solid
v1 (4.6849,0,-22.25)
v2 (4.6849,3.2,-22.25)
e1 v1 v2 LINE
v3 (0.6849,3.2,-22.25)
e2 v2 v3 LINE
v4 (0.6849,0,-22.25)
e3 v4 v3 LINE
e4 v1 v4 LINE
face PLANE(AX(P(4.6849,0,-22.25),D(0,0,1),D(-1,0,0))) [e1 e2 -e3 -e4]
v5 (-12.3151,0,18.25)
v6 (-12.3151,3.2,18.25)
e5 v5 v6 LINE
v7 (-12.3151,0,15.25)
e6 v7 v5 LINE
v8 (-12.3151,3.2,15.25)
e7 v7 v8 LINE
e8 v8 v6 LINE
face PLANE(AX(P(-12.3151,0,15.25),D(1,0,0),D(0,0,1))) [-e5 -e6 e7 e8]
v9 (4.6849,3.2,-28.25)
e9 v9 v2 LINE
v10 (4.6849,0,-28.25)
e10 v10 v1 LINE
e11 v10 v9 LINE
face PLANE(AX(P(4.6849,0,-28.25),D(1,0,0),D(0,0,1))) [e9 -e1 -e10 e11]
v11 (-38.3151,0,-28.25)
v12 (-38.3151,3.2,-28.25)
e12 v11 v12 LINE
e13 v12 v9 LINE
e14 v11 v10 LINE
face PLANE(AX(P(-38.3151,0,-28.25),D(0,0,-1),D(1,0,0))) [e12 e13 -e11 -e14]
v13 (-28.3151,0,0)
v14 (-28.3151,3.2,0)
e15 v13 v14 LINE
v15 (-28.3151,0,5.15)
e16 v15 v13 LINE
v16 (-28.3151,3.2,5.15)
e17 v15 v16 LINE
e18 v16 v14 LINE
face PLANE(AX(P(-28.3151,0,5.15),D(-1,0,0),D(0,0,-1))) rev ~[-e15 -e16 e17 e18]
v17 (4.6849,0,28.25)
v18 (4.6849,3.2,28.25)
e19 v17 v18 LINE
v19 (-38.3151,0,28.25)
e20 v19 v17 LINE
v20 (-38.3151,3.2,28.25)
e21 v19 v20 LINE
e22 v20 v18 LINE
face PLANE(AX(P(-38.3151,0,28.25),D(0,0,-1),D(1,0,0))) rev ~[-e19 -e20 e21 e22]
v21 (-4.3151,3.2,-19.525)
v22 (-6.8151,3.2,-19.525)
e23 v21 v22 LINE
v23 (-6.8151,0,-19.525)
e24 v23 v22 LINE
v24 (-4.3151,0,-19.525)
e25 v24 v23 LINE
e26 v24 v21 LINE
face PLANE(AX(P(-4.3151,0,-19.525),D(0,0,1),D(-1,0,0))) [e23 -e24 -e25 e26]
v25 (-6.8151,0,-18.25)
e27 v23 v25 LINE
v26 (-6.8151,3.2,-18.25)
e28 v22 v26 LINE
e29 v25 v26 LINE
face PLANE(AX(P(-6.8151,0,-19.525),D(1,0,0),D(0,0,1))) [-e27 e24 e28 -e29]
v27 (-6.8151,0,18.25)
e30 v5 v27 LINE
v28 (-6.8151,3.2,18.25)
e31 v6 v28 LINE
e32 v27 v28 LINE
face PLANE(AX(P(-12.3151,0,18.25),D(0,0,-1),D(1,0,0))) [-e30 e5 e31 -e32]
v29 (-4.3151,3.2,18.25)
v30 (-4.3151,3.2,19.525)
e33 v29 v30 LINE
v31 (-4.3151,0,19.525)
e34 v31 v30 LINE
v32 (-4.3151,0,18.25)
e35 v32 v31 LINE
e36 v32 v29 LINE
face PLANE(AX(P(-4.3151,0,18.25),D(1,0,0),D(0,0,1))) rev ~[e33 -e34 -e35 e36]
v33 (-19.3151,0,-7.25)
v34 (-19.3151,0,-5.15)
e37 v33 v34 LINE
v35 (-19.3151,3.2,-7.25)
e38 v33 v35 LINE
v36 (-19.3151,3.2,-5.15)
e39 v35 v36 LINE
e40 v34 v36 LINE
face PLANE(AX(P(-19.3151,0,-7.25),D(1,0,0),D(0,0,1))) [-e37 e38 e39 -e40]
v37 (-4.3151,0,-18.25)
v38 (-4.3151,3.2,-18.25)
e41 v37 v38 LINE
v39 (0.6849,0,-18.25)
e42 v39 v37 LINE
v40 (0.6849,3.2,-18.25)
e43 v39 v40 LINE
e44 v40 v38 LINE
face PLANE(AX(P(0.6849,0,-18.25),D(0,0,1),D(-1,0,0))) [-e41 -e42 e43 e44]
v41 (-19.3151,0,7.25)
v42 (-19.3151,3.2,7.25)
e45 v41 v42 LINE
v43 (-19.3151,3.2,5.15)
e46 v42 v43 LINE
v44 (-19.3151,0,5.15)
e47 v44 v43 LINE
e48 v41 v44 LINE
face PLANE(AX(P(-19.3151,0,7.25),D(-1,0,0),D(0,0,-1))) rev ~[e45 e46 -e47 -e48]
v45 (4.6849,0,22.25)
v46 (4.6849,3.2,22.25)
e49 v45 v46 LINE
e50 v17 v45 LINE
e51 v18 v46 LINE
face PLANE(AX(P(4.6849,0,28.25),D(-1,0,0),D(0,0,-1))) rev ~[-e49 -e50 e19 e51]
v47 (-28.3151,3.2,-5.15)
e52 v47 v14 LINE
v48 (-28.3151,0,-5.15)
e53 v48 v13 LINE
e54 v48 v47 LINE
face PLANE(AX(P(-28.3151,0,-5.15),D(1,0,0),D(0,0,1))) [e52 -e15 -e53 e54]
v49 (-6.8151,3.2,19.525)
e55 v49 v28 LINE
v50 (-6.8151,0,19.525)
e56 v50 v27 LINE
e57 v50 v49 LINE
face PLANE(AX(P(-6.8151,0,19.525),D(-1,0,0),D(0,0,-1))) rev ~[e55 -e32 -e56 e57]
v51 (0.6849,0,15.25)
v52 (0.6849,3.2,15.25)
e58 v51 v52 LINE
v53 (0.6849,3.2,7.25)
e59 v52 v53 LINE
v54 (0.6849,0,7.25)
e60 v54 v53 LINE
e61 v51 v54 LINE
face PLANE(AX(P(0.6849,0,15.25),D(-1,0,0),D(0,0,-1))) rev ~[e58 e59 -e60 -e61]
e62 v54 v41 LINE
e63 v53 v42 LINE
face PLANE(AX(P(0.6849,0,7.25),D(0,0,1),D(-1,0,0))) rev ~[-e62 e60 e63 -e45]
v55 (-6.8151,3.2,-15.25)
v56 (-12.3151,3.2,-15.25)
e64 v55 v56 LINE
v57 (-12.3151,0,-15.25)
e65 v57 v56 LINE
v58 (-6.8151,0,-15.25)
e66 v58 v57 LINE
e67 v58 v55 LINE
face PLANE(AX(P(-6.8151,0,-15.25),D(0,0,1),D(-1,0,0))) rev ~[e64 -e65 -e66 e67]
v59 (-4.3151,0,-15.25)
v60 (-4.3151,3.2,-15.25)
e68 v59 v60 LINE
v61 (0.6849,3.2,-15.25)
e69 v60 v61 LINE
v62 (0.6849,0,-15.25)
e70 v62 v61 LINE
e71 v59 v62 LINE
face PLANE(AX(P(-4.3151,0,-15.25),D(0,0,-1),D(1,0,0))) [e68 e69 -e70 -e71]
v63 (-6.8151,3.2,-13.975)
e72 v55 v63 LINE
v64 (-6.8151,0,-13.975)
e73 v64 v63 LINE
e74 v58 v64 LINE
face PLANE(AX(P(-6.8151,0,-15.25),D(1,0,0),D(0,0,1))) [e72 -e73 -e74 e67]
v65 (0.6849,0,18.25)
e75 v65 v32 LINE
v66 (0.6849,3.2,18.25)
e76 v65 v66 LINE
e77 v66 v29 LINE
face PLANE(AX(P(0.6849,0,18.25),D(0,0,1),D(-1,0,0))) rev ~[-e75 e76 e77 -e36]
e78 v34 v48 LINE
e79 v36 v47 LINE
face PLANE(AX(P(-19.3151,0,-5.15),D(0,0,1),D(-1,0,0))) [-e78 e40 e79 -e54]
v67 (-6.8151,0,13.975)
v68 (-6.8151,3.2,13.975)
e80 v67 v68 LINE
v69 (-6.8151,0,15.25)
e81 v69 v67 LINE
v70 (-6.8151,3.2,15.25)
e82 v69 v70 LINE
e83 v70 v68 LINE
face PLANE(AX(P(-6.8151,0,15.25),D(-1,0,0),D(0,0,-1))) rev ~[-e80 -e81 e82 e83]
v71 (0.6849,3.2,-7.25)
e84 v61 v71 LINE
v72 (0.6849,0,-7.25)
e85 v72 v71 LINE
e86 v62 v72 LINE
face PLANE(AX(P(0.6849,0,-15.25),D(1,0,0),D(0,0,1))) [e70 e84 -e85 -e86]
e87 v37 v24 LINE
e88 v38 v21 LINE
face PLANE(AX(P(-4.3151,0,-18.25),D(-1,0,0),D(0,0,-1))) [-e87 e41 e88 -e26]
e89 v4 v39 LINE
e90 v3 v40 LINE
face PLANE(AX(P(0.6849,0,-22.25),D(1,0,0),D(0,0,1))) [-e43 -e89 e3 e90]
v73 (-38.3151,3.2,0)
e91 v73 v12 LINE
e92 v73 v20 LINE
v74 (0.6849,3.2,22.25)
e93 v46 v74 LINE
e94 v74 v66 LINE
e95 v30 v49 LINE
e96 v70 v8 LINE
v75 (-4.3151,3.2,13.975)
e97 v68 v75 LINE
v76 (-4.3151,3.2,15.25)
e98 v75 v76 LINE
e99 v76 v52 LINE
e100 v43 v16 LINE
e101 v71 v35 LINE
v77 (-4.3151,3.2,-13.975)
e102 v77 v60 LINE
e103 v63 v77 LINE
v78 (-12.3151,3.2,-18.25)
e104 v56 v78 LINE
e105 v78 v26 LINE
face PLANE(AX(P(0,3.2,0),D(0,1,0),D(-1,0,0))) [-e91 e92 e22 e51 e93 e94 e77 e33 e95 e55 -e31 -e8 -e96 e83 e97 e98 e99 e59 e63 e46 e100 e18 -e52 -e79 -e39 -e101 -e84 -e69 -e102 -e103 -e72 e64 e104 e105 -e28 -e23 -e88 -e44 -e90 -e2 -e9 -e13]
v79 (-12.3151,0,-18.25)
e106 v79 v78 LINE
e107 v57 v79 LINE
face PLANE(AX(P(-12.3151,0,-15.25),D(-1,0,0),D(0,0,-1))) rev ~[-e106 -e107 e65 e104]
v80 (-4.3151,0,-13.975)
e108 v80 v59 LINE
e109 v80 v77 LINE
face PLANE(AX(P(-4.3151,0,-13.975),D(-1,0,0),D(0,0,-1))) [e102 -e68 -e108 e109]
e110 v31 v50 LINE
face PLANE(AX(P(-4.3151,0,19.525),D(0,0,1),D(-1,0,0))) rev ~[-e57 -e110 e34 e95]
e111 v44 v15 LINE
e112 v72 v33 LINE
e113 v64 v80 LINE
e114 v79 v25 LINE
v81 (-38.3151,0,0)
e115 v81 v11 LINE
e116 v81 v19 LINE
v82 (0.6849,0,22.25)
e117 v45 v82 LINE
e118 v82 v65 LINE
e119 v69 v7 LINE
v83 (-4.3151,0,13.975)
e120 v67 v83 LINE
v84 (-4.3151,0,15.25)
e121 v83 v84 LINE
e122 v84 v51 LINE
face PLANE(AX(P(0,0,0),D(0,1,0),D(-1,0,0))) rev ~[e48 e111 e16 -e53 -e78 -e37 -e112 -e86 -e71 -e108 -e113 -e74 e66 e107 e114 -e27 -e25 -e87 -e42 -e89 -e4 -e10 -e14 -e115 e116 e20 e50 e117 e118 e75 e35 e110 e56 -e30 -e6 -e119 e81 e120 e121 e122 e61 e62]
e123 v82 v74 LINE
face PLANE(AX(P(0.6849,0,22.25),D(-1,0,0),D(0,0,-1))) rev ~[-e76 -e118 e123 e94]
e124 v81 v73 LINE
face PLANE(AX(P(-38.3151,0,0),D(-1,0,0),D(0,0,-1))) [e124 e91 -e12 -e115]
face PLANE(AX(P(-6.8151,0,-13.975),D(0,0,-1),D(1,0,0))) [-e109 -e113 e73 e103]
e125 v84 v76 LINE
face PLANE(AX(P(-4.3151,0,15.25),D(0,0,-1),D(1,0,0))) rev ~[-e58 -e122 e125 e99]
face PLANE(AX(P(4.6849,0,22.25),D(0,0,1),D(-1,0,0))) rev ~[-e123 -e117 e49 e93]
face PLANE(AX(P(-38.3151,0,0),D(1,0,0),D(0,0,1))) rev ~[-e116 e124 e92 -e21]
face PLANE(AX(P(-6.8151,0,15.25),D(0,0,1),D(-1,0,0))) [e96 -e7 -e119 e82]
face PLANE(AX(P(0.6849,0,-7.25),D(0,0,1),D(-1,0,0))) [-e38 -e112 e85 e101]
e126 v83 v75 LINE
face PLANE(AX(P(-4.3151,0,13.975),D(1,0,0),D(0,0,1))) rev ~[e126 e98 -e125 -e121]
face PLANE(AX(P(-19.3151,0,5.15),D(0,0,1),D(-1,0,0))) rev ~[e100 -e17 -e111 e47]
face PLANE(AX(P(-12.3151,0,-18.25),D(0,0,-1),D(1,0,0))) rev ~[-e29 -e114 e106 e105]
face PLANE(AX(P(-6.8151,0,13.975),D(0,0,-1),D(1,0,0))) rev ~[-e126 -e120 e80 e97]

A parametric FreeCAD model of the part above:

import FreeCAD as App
import Part
import Sketcher
from FreeCAD import Vector
Q = App.Units.Quantity

doc = App.newDocument("Part")
params = doc.addObject("Spreadsheet::Sheet", "Params")
for row, (alias, value) in enumerate([
    ("sketch1_width", "4 mm"),
    ("sketch1_width2", "5 mm"),
    ("sketch1_width3", "9 mm"),
    ("sketch1_height", "6 mm"),
    ("sketch1_height2", "3 mm"),
    ("pad1_length", "3.2 mm"),
], start=1):
    params.set(f"A{row}", alias)
    params.set(f"B{row}", "=" + value)
    params.setAlias(f"B{row}", alias)

body = doc.addObject("PartDesign::Body", "Body")

# Sketch on XZ plane
sketch1 = body.newObject("Sketcher::SketchObject", "Sketch")
sketch1.AttachmentSupport = (doc.getObject("XZ_Plane"), [""])
sketch1.MapMode = "FlatFace"
sketch1.addGeometry([
    Part.LineSegment(Vector(-38.3151, -28.25, 0), Vector(-38.3151, 28.25, 0)),  # 0
    Part.LineSegment(Vector(-38.3151, 28.25, 0), Vector(4.6849, 28.25, 0)),  # 1
    Part.LineSegment(Vector(4.6849, 28.25, 0), Vector(4.6849, 22.25, 0)),  # 2
    Part.LineSegment(Vector(4.6849, 22.25, 0), Vector(0.6849, 22.25, 0)),  # 3
    Part.LineSegment(Vector(0.6849, 22.25, 0), Vector(0.6849, 18.25, 0)),  # 4
    Part.LineSegment(Vector(0.6849, 18.25, 0), Vector(-4.3151, 18.25, 0)),  # 5
    Part.LineSegment(Vector(-4.3151, 18.25, 0), Vector(-4.3151, 19.525, 0)),  # 6
    Part.LineSegment(Vector(-4.3151, 19.525, 0), Vector(-6.8151, 19.525, 0)),  # 7
    Part.LineSegment(Vector(-6.8151, 19.525, 0), Vector(-6.8151, 18.25, 0)),  # 8
    Part.LineSegment(Vector(-6.8151, 18.25, 0), Vector(-12.3151, 18.25, 0)),  # 9
    Part.LineSegment(Vector(-12.3151, 18.25, 0), Vector(-12.3151, 15.25, 0)),  # 10
    Part.LineSegment(Vector(-12.3151, 15.25, 0), Vector(-6.8151, 15.25, 0)),  # 11
    Part.LineSegment(Vector(-6.8151, 15.25, 0), Vector(-6.8151, 13.975, 0)),  # 12
    Part.LineSegment(Vector(-6.8151, 13.975, 0), Vector(-4.3151, 13.975, 0)),  # 13
    Part.LineSegment(Vector(-4.3151, 13.975, 0), Vector(-4.3151, 15.25, 0)),  # 14
    Part.LineSegment(Vector(-4.3151, 15.25, 0), Vector(0.6849, 15.25, 0)),  # 15
    Part.LineSegment(Vector(0.6849, 15.25, 0), Vector(0.6849, 7.25, 0)),  # 16
    Part.LineSegment(Vector(0.6849, 7.25, 0), Vector(-19.3151, 7.25, 0)),  # 17
    Part.LineSegment(Vector(-19.3151, 7.25, 0), Vector(-19.3151, 5.15, 0)),  # 18
    Part.LineSegment(Vector(-19.3151, 5.15, 0), Vector(-28.3151, 5.15, 0)),  # 19
    Part.LineSegment(Vector(-28.3151, 5.15, 0), Vector(-28.3151, -5.15, 0)),  # 20
    Part.LineSegment(Vector(-28.3151, -5.15, 0), Vector(-19.3151, -5.15, 0)),  # 21
    Part.LineSegment(Vector(-19.3151, -5.15, 0), Vector(-19.3151, -7.25, 0)),  # 22
    Part.LineSegment(Vector(-19.3151, -7.25, 0), Vector(0.6849, -7.25, 0)),  # 23
    Part.LineSegment(Vector(0.6849, -7.25, 0), Vector(0.6849, -15.25, 0)),  # 24
    Part.LineSegment(Vector(0.6849, -15.25, 0), Vector(-4.3151, -15.25, 0)),  # 25
    Part.LineSegment(Vector(-4.3151, -15.25, 0), Vector(-4.3151, -13.975, 0)),  # 26
    Part.LineSegment(Vector(-4.3151, -13.975, 0), Vector(-6.8151, -13.975, 0)),  # 27
    Part.LineSegment(Vector(-6.8151, -13.975, 0), Vector(-6.8151, -15.25, 0)),  # 28
    Part.LineSegment(Vector(-6.8151, -15.25, 0), Vector(-12.3151, -15.25, 0)),  # 29
    Part.LineSegment(Vector(-12.3151, -15.25, 0), Vector(-12.3151, -18.25, 0)),  # 30
    Part.LineSegment(Vector(-12.3151, -18.25, 0), Vector(-6.8151, -18.25, 0)),  # 31
    Part.LineSegment(Vector(-6.8151, -18.25, 0), Vector(-6.8151, -19.525, 0)),  # 32
    Part.LineSegment(Vector(-6.8151, -19.525, 0), Vector(-4.3151, -19.525, 0)),  # 33
    Part.LineSegment(Vector(-4.3151, -19.525, 0), Vector(-4.3151, -18.25, 0)),  # 34
    Part.LineSegment(Vector(-4.3151, -18.25, 0), Vector(0.6849, -18.25, 0)),  # 35
    Part.LineSegment(Vector(0.6849, -18.25, 0), Vector(0.6849, -22.25, 0)),  # 36
    Part.LineSegment(Vector(0.6849, -22.25, 0), Vector(4.6849, -22.25, 0)),  # 37
    Part.LineSegment(Vector(4.6849, -22.25, 0), Vector(4.6849, -28.25, 0)),  # 38
    Part.LineSegment(Vector(4.6849, -28.25, 0), Vector(-38.3151, -28.25, 0)),  # 39
], False)
sketch1.addConstraint([
    Sketcher.Constraint("Coincident", 0, 2, 1, 1),
    Sketcher.Constraint("Coincident", 1, 2, 2, 1),
    Sketcher.Constraint("Coincident", 2, 2, 3, 1),
    Sketcher.Constraint("Coincident", 3, 2, 4, 1),
    Sketcher.Constraint("Coincident", 4, 2, 5, 1),
    Sketcher.Constraint("Coincident", 5, 2, 6, 1),
    Sketcher.Constraint("Coincident", 6, 2, 7, 1),
    Sketcher.Constraint("Coincident", 7, 2, 8, 1),
    Sketcher.Constraint("Coincident", 8, 2, 9, 1),
    Sketcher.Constraint("Coincident", 9, 2, 10, 1),
    Sketcher.Constraint("Coincident", 10, 2, 11, 1),
    Sketcher.Constraint("Coincident", 11, 2, 12, 1),
    Sketcher.Constraint("Coincident", 12, 2, 13, 1),
    Sketcher.Constraint("Coincident", 13, 2, 14, 1),
    Sketcher.Constraint("Coincident", 14, 2, 15, 1),
    Sketcher.Constraint("Coincident", 15, 2, 16, 1),
    Sketcher.Constraint("Coincident", 16, 2, 17, 1),
    Sketcher.Constraint("Coincident", 17, 2, 18, 1),
    Sketcher.Constraint("Coincident", 18, 2, 19, 1),
    Sketcher.Constraint("Coincident", 19, 2, 20, 1),
    Sketcher.Constraint("Coincident", 20, 2, 21, 1),
    Sketcher.Constraint("Coincident", 21, 2, 22, 1),
    Sketcher.Constraint("Coincident", 22, 2, 23, 1),
    Sketcher.Constraint("Coincident", 23, 2, 24, 1),
    Sketcher.Constraint("Coincident", 24, 2, 25, 1),
    Sketcher.Constraint("Coincident", 25, 2, 26, 1),
    Sketcher.Constraint("Coincident", 26, 2, 27, 1),
    Sketcher.Constraint("Coincident", 27, 2, 28, 1),
    Sketcher.Constraint("Coincident", 28, 2, 29, 1),
    Sketcher.Constraint("Coincident", 29, 2, 30, 1),
    Sketcher.Constraint("Coincident", 30, 2, 31, 1),
    Sketcher.Constraint("Coincident", 31, 2, 32, 1),
    Sketcher.Constraint("Coincident", 32, 2, 33, 1),
    Sketcher.Constraint("Coincident", 33, 2, 34, 1),
    Sketcher.Constraint("Coincident", 34, 2, 35, 1),
    Sketcher.Constraint("Coincident", 35, 2, 36, 1),
    Sketcher.Constraint("Coincident", 36, 2, 37, 1),
    Sketcher.Constraint("Coincident", 37, 2, 38, 1),
    Sketcher.Constraint("Coincident", 38, 2, 39, 1),
    Sketcher.Constraint("Coincident", 39, 2, 0, 1),
    Sketcher.Constraint("Vertical", 0),
    Sketcher.Constraint("Horizontal", 1),
    Sketcher.Constraint("Vertical", 2),
    Sketcher.Constraint("Horizontal", 3),
    Sketcher.Constraint("Vertical", 4),
    Sketcher.Constraint("Horizontal", 5),
    Sketcher.Constraint("Vertical", 6),
    Sketcher.Constraint("Horizontal", 7),
    Sketcher.Constraint("Vertical", 8),
    Sketcher.Constraint("Horizontal", 9),
    Sketcher.Constraint("Vertical", 10),
    Sketcher.Constraint("Horizontal", 11),
    Sketcher.Constraint("Vertical", 12),
    Sketcher.Constraint("Horizontal", 13),
    Sketcher.Constraint("Vertical", 14),
    Sketcher.Constraint("Horizontal", 15),
    Sketcher.Constraint("Vertical", 16),
    Sketcher.Constraint("Horizontal", 17),
    Sketcher.Constraint("Vertical", 18),
    Sketcher.Constraint("Horizontal", 19),
    Sketcher.Constraint("Vertical", 20),
    Sketcher.Constraint("Horizontal", 21),
    Sketcher.Constraint("Vertical", 22),
    Sketcher.Constraint("Horizontal", 23),
    Sketcher.Constraint("Vertical", 24),
    Sketcher.Constraint("Horizontal", 25),
    Sketcher.Constraint("Vertical", 26),
    Sketcher.Constraint("Horizontal", 27),
    Sketcher.Constraint("Vertical", 28),
    Sketcher.Constraint("Horizontal", 29),
    Sketcher.Constraint("Vertical", 30),
    Sketcher.Constraint("Horizontal", 31),
    Sketcher.Constraint("Vertical", 32),
    Sketcher.Constraint("Horizontal", 33),
    Sketcher.Constraint("Vertical", 34),
    Sketcher.Constraint("Horizontal", 35),
    Sketcher.Constraint("Vertical", 36),
    Sketcher.Constraint("Horizontal", 37),
    Sketcher.Constraint("Vertical", 38),
    Sketcher.Constraint("Horizontal", 39),
    Sketcher.Constraint("Symmetric", 18, 2, 21, 2, -1),
    Sketcher.Constraint("Symmetric", 16, 2, 23, 2, -1),
    Sketcher.Constraint("Symmetric", 14, 2, 25, 2, -1),
    Sketcher.Constraint("Symmetric", 12, 2, 27, 2, -1),
    Sketcher.Constraint("Symmetric", 10, 2, 29, 2, -1),
    Sketcher.Constraint("Symmetric", 8, 2, 31, 2, -1),
    Sketcher.Constraint("Symmetric", 6, 2, 33, 2, -1),
    Sketcher.Constraint("Symmetric", 4, 2, 35, 2, -1),
    Sketcher.Constraint("Symmetric", 2, 2, 37, 2, -1),
    Sketcher.Constraint("Horizontal", 5, 2, 8, 2),
    Sketcher.Constraint("Horizontal", 11, 2, 14, 2),
    Sketcher.Constraint("Vertical", 8, 2, 11, 2),
    Sketcher.Constraint("Vertical", 6, 2, 13, 2),
    Sketcher.Constraint("Vertical", 4, 2, 15, 2),
    Sketcher.Constraint("Equal", 37, 4),
    Sketcher.Constraint("Equal", 8, 12),
    Sketcher.Constraint("Equal", 2, 38),
    Sketcher.Constraint("DistanceX", 3, 2, 3, 1, Q("4 mm")),
    Sketcher.Constraint("DistanceX", 5, 2, 5, 1, Q("5 mm")),
    Sketcher.Constraint("DistanceX", 19, 2, 19, 1, Q("9 mm")),
    Sketcher.Constraint("DistanceY", 2, 2, 2, 1, Q("6 mm")),
    Sketcher.Constraint("DistanceY", 10, 2, 10, 1, Q("3 mm")),
    Sketcher.Constraint("DistanceY", 16, 2, 16, 1, Q("8 mm")),
    Sketcher.Constraint("DistanceX", 7, 2, 7, 1, Q("2.5 mm")),
    Sketcher.Constraint("DistanceY", 20, 2, 20, 1, Q("10.3 mm")),
    Sketcher.Constraint("DistanceX", 9, 2, 5, 2, Q("8 mm")),
    Sketcher.Constraint("DistanceX", 39, 2, 20, 2, Q("10 mm")),
    Sketcher.Constraint("DistanceY", 22, 2, 17, 2, Q("14.5 mm")),
    Sketcher.Constraint("DistanceX", 1, 1, 1, 2, Q("43 mm")),
    Sketcher.Constraint("DistanceY", 12, 2, 7, 2, Q("5.55 mm")),
    Sketcher.Constraint("DistanceX", 0, 2, -1, 1, Q("38.315 mm")),
])
sketch1.setExpression("Constraints[97]", "Params.sketch1_width")
sketch1.setExpression("Constraints[98]", "Params.sketch1_width2")
sketch1.setExpression("Constraints[99]", "Params.sketch1_width3")
sketch1.setExpression("Constraints[100]", "Params.sketch1_height")
sketch1.setExpression("Constraints[101]", "Params.sketch1_height2")
pad1 = body.newObject("PartDesign::Pad", "Pad")
pad1.Profile = sketch1
pad1.setExpression("Length", "Params.pad1_length")
pad1.Reversed = True

doc.recompute()
